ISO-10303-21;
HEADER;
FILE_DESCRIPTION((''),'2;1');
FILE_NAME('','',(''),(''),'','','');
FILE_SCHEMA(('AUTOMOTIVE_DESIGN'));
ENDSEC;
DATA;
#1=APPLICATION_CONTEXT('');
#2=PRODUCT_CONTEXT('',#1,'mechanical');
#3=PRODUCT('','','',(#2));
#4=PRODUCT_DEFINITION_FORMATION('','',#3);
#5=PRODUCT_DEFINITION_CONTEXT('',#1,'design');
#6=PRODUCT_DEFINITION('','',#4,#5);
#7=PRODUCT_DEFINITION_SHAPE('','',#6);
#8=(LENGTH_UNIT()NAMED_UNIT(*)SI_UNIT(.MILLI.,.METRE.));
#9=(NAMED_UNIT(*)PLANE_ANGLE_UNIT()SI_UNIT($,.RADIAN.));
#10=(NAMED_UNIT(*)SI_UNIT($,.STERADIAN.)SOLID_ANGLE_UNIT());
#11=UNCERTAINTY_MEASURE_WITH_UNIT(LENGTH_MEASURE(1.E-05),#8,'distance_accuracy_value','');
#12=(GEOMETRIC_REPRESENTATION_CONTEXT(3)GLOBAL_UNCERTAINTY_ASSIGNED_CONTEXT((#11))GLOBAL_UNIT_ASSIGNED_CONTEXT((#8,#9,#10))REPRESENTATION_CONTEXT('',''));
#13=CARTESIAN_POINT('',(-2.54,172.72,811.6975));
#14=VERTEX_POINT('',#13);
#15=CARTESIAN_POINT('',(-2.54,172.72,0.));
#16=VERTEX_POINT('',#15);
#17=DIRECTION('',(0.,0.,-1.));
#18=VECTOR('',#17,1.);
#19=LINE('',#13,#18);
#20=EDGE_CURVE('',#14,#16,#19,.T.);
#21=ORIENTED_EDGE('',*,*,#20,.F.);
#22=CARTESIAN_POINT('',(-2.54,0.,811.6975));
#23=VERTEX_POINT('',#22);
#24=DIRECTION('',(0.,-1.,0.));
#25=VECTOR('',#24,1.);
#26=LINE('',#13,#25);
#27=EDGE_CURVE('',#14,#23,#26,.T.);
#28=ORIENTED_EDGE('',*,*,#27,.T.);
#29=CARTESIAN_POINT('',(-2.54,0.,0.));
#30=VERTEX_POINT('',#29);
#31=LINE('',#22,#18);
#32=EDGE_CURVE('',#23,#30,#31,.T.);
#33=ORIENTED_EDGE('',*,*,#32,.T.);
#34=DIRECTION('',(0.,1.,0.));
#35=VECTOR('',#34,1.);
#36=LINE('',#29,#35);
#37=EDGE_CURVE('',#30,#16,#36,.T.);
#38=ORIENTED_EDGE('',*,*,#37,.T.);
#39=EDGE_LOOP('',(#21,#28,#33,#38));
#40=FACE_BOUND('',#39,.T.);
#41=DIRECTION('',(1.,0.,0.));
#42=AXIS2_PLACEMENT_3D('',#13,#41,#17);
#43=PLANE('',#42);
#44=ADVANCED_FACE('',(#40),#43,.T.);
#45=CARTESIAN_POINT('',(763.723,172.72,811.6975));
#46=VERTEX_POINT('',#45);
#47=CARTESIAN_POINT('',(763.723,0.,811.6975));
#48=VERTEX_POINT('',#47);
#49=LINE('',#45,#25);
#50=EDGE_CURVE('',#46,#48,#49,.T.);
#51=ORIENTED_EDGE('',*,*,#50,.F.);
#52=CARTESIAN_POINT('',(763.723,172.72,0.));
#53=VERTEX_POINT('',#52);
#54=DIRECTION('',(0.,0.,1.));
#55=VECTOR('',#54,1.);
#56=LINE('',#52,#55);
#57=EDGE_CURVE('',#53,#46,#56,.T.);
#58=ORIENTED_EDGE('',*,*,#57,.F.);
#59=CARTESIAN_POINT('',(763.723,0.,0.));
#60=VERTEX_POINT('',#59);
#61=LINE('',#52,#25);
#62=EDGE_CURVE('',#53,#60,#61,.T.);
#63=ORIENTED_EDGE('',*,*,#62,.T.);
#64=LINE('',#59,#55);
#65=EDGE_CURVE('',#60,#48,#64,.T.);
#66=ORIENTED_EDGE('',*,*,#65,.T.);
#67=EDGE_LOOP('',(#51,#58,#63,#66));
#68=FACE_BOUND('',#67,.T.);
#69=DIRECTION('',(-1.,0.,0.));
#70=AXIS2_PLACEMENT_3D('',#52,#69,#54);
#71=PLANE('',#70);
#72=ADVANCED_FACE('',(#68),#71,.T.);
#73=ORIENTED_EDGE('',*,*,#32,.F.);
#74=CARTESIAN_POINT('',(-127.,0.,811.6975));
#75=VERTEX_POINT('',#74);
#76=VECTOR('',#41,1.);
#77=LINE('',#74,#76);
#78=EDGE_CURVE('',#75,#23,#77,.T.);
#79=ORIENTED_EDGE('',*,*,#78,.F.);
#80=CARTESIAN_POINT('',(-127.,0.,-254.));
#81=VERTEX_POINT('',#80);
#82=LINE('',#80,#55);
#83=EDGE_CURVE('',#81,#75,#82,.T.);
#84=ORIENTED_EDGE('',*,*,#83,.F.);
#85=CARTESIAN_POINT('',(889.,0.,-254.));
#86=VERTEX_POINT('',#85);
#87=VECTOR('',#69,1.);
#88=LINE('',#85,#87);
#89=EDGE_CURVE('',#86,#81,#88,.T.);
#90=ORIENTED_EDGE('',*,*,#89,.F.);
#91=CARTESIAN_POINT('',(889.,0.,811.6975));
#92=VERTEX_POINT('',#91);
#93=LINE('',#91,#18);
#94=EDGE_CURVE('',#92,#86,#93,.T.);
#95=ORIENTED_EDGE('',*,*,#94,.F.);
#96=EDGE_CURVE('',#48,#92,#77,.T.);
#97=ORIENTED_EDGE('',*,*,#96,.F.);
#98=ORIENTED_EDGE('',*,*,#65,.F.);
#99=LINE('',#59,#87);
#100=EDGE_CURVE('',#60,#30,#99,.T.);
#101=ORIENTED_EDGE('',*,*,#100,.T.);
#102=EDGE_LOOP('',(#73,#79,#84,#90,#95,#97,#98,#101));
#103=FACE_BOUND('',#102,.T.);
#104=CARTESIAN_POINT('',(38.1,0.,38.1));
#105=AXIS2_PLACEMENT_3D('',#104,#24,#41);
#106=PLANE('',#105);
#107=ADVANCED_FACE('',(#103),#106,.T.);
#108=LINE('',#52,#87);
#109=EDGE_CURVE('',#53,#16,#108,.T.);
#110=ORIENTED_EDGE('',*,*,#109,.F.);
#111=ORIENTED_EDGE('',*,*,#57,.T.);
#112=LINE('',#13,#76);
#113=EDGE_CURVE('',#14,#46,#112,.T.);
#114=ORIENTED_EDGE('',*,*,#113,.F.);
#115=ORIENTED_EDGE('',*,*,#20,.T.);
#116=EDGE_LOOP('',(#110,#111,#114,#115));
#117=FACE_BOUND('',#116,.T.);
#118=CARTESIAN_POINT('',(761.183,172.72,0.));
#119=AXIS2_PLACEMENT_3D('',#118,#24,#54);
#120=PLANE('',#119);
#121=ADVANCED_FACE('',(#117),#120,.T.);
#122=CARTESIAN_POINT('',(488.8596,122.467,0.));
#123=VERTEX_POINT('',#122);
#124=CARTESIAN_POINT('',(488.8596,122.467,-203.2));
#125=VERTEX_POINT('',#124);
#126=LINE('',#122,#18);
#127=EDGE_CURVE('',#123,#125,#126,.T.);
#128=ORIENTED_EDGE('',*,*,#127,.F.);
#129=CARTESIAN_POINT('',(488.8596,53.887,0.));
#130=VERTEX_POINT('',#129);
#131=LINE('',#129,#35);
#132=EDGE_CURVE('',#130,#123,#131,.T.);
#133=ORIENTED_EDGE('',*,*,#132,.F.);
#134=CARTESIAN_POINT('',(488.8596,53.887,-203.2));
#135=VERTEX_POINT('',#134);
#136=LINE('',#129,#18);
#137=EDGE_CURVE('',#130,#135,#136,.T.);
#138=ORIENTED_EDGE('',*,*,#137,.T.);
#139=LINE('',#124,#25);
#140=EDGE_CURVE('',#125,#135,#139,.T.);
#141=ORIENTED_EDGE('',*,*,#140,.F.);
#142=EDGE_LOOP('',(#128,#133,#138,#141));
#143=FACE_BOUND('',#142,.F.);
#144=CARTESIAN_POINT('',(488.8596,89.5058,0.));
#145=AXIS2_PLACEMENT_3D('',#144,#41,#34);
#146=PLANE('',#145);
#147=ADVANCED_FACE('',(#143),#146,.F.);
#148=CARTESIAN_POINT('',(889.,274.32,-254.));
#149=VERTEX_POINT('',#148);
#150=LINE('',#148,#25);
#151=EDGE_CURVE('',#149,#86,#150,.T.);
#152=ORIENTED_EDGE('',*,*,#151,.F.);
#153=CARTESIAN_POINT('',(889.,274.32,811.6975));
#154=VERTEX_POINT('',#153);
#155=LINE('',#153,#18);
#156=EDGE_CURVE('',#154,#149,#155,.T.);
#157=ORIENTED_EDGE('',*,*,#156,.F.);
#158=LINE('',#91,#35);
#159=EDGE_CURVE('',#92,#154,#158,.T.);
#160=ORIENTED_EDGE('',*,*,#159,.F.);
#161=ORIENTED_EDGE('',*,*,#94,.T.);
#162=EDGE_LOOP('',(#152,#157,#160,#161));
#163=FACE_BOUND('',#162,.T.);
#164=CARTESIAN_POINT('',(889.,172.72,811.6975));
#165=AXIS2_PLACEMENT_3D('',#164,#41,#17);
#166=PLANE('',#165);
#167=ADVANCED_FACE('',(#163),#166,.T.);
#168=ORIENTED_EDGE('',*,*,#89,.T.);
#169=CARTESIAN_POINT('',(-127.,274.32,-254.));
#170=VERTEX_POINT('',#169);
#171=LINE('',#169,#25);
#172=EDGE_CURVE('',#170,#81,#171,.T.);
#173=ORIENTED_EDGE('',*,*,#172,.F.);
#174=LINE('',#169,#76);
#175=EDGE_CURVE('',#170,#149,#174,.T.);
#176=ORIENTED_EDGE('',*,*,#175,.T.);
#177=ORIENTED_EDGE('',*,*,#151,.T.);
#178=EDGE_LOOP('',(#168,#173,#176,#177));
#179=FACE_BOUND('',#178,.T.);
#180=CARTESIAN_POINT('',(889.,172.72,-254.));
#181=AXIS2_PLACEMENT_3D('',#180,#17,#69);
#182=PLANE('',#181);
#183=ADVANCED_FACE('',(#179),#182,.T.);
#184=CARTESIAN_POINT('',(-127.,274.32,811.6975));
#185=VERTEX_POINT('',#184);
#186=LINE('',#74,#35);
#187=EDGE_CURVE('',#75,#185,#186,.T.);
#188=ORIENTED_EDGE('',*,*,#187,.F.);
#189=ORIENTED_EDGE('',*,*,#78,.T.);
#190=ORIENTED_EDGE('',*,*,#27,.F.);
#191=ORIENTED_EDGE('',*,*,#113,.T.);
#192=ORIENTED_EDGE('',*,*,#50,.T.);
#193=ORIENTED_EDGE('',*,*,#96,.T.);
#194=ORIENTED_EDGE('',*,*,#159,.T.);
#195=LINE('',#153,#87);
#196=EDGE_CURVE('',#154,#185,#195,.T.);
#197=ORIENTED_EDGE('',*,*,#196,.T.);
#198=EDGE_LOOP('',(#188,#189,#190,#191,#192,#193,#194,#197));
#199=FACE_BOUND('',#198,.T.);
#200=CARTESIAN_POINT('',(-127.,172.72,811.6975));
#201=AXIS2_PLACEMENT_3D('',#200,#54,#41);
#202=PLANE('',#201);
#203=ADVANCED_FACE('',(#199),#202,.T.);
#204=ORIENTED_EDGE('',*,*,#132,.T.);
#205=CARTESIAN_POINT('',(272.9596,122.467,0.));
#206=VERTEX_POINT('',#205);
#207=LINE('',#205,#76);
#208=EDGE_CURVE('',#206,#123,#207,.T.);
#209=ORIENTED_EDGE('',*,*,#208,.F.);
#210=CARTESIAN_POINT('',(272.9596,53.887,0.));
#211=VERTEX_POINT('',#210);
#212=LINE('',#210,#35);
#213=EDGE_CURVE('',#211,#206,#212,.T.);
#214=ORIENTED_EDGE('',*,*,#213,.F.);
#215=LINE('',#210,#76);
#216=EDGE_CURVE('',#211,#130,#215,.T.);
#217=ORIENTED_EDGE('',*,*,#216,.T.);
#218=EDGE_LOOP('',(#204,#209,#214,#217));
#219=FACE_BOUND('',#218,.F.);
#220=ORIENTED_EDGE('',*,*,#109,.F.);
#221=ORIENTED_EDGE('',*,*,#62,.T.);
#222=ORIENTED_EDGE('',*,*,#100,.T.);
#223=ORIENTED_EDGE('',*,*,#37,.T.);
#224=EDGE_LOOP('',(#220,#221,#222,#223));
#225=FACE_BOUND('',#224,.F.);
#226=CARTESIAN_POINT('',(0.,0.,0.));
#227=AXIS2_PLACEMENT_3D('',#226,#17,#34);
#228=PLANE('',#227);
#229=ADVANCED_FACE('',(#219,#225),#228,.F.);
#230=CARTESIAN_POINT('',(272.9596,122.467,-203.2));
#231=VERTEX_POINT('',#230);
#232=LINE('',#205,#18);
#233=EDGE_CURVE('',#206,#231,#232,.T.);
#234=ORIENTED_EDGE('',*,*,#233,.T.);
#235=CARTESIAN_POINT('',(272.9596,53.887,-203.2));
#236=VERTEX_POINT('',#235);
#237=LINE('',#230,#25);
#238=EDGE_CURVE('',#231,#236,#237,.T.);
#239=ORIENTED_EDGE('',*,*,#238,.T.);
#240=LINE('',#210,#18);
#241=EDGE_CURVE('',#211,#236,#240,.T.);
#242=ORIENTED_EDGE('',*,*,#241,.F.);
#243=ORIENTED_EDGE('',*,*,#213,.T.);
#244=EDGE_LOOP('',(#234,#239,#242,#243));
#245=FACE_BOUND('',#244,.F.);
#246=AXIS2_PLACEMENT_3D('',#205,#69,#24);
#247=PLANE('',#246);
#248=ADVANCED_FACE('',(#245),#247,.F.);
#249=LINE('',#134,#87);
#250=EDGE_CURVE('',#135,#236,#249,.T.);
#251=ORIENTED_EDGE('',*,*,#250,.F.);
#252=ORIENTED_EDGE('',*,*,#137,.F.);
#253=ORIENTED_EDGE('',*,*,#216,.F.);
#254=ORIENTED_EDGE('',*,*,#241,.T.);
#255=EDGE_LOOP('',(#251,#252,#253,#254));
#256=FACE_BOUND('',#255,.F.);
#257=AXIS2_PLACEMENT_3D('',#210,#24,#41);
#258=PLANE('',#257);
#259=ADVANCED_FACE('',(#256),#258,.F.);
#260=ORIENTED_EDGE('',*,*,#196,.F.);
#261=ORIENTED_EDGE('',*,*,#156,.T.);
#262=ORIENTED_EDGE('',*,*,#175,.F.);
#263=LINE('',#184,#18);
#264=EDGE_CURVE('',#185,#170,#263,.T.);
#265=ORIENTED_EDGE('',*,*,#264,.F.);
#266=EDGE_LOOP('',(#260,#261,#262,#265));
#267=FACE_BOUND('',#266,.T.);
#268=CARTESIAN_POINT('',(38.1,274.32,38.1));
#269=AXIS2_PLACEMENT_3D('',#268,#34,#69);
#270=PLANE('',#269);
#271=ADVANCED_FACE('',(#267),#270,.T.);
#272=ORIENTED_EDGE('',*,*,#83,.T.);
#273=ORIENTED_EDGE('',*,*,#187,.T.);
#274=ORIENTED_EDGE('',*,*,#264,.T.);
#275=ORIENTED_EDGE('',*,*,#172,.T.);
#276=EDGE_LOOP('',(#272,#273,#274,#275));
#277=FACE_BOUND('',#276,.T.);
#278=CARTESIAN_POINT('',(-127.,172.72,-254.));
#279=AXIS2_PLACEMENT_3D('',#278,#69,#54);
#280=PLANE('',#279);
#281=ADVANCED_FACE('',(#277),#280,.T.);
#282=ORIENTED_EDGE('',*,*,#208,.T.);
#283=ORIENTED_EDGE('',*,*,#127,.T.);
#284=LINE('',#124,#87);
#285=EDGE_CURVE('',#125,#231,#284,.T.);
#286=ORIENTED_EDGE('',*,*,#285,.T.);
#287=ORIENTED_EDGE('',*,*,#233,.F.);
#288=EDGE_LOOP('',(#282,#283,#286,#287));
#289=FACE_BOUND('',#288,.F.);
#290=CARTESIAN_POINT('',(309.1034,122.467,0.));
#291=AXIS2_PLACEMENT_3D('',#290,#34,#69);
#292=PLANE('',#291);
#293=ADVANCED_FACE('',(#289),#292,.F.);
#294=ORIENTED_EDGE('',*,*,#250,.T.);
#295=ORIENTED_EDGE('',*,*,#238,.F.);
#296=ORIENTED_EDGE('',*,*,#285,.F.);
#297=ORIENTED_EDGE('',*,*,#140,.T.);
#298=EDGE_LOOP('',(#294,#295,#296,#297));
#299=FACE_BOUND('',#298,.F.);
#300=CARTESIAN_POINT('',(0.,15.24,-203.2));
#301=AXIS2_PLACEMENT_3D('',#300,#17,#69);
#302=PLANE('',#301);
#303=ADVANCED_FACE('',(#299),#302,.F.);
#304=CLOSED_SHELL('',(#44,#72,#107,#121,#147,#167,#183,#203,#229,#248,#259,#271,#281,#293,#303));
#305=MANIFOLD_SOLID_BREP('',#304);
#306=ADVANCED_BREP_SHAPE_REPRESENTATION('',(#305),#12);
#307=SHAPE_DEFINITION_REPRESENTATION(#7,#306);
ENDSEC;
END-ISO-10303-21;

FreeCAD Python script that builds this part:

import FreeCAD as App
import Part
import Sketcher
Q = App.Units.Quantity


def add_polygon(sketch, points):
    """Adds a closed chain of lines whose ends are joined by coincident constraints."""
    first, n = sketch.GeometryCount, len(points)
    for a, b in zip(points, points[1:] + points[:1]):
        sketch.addGeometry(Part.LineSegment(App.Vector(*a, 0), App.Vector(*b, 0)), False)
    for i in range(n):
        sketch.addConstraint(Sketcher.Constraint("Coincident", first + i, 2, first + (i + 1) % n, 1))

doc = App.newDocument("Part")
body = doc.addObject("PartDesign::Body", "Body")

# Sketch on XZ plane
sketch1 = doc.addObject("Sketcher::SketchObject", "Sketch")
body.addObject(sketch1)
sketch1.AttachmentSupport = (doc.XZ_Plane, [""])
sketch1.MapMode = "FlatFace"
sketch1.AttachmentOffset = App.Placement(App.Vector(0, 0, -6.8 * 25.4), App.Rotation())
add_polygon(sketch1, [(-127, 812), (889, 812), (889, -254), (-127, -254)])  # lines 0-3
sketch1.addConstraint([
    Sketcher.Constraint("Horizontal", 0),
    Sketcher.Constraint("Vertical", 1),
    Sketcher.Constraint("Horizontal", 2),
    Sketcher.Constraint("Vertical", 3),
    Sketcher.Constraint("DistanceX", -1, 1, 0, 2, Q("35 in")),
    Sketcher.Constraint("DistanceX", 2, 2, -1, 1, Q("5 in")),
    Sketcher.Constraint("DistanceY", 1, 2, -1, 1, Q("10 in")),
    Sketcher.Constraint("DistanceY", -1, 1, 0, 2, Q("31.9566 in")),
])
pad1 = doc.addObject("PartDesign::Pad", "Pad")
body.addObject(pad1)
pad1.Profile = sketch1
pad1.Length = Q("4 in")
pad1.Reversed = True

# Sketch on XZ plane
sketch2 = doc.addObject("Sketcher::SketchObject", "Sketch001")
body.addObject(sketch2)
sketch2.AttachmentSupport = (doc.XZ_Plane, [""])
sketch2.MapMode = "FlatFace"
sketch2.AttachmentOffset = App.Placement(App.Vector(0, 0, -6.8 * 25.4), App.Rotation())
add_polygon(sketch2, [(-127, 812), (-127, -254), (889, -254), (889, 812), (761, 812), (761, 0), (0, 0), (0, 812)])  # lines 0-7
sketch2.addConstraint([
    Sketcher.Constraint("Vertical", 0),
    Sketcher.Constraint("Horizontal", 1),
    Sketcher.Constraint("Vertical", 2),
    Sketcher.Constraint("Horizontal", 3),
    Sketcher.Constraint("Vertical", 4),
    Sketcher.Constraint("Horizontal", 5),
    Sketcher.Constraint("Vertical", 6),
    Sketcher.Constraint("Horizontal", 7),
    Sketcher.Constraint("Coincident", 5, 2, -1, 1),
    Sketcher.Constraint("Horizontal", 3, 2, 6, 2),
    Sketcher.Constraint("DistanceX", 1, 1, 1, 2, Q("40 in")),
    Sketcher.Constraint("DistanceX", 7, 2, 7, 1, Q("5 in")),
    Sketcher.Constraint("DistanceY", 0, 2, -1, 1, Q("10 in")),
    Sketcher.Constraint("DistanceY", 0, 2, 0, 1, Q("41.9566 in")),
    Sketcher.Constraint("DistanceX", 3, 2, 3, 1, Q("127.817 mm")),
])
pad2 = doc.addObject("PartDesign::Pad", "Pad001")
body.addObject(pad2)
pad2.Profile = sketch2
pad2.Length = Q("6.8 in")

# Sketch on XY plane
sketch3 = doc.addObject("Sketcher::SketchObject", "Sketch002")
body.addObject(sketch3)
sketch3.AttachmentSupport = (doc.XY_Plane, [""])
sketch3.MapMode = "FlatFace"
add_polygon(sketch3, [(273, 122), (489, 122), (489, 54), (273, 54)])  # lines 0-3
sketch3.addConstraint([
    Sketcher.Constraint("Horizontal", 0),
    Sketcher.Constraint("Vertical", 1),
    Sketcher.Constraint("Horizontal", 2),
    Sketcher.Constraint("Vertical", 3),
    Sketcher.Constraint("DistanceX", 0, 1, 0, 2, Q("8.5 in")),
    Sketcher.Constraint("DistanceY", 1, 2, 1, 1, Q("2.7 in")),
    Sketcher.Constraint("DistanceX", -1, 1, 0, 2, Q("488.8596 mm")),
    Sketcher.Constraint("DistanceY", -1, 1, 0, 2, Q("122.467 mm")),
])
pocket1 = doc.addObject("PartDesign::Pocket", "Pocket")
body.addObject(pocket1)
pocket1.Profile = sketch3
pocket1.Length = Q("8 in")

# Sketch on YZ plane
sketch4 = doc.addObject("Sketcher::SketchObject", "Sketch003")
body.addObject(sketch4)
sketch4.AttachmentSupport = (doc.YZ_Plane, [""])
sketch4.MapMode = "FlatFace"
sketch4.AttachmentOffset = App.Placement(App.Vector(0, 0, 761.183), App.Rotation())
add_polygon(sketch4, [(173, 0), (0, 0), (0, 812), (173, 812)])  # lines 0-3
sketch4.addConstraint([
    Sketcher.Constraint("Horizontal", 0),
    Sketcher.Constraint("Vertical", 1),
    Sketcher.Constraint("Horizontal", 2),
    Sketcher.Constraint("Vertical", 3),
    Sketcher.Constraint("Coincident", 0, 2, -1, 1),
    Sketcher.Constraint("DistanceX", 0, 2, 0, 1, Q("6.8 in")),
    Sketcher.Constraint("DistanceY", 1, 1, 1, 2, Q("31.9566 in")),
])
pocket2 = doc.addObject("PartDesign::Pocket", "Pocket001")
body.addObject(pocket2)
pocket2.Profile = sketch4
pocket2.Length = Q("0.1 in")
pocket2.Reversed = True

# Sketch on YZ plane
sketch5 = doc.addObject("Sketcher::SketchObject", "Sketch004")
body.addObject(sketch5)
sketch5.AttachmentSupport = (doc.YZ_Plane, [""])
sketch5.MapMode = "FlatFace"
add_polygon(sketch5, [(173, 812), (0, 812), (0, 0), (173, 0)])  # lines 0-3
sketch5.addConstraint([
    Sketcher.Constraint("Horizontal", 0),
    Sketcher.Constraint("Vertical", 1),
    Sketcher.Constraint("Horizontal", 2),
    Sketcher.Constraint("Vertical", 3),
    Sketcher.Constraint("Coincident", 1, 2, -1, 1),
    Sketcher.Constraint("DistanceX", 0, 2, 0, 1, Q("6.8 in")),
    Sketcher.Constraint("DistanceY", 1, 2, 1, 1, Q("31.9566 in")),
])
pocket3 = doc.addObject("PartDesign::Pocket", "Pocket002")
body.addObject(pocket3)
pocket3.Profile = sketch5
pocket3.Length = Q("0.1 in")

doc.recompute()
